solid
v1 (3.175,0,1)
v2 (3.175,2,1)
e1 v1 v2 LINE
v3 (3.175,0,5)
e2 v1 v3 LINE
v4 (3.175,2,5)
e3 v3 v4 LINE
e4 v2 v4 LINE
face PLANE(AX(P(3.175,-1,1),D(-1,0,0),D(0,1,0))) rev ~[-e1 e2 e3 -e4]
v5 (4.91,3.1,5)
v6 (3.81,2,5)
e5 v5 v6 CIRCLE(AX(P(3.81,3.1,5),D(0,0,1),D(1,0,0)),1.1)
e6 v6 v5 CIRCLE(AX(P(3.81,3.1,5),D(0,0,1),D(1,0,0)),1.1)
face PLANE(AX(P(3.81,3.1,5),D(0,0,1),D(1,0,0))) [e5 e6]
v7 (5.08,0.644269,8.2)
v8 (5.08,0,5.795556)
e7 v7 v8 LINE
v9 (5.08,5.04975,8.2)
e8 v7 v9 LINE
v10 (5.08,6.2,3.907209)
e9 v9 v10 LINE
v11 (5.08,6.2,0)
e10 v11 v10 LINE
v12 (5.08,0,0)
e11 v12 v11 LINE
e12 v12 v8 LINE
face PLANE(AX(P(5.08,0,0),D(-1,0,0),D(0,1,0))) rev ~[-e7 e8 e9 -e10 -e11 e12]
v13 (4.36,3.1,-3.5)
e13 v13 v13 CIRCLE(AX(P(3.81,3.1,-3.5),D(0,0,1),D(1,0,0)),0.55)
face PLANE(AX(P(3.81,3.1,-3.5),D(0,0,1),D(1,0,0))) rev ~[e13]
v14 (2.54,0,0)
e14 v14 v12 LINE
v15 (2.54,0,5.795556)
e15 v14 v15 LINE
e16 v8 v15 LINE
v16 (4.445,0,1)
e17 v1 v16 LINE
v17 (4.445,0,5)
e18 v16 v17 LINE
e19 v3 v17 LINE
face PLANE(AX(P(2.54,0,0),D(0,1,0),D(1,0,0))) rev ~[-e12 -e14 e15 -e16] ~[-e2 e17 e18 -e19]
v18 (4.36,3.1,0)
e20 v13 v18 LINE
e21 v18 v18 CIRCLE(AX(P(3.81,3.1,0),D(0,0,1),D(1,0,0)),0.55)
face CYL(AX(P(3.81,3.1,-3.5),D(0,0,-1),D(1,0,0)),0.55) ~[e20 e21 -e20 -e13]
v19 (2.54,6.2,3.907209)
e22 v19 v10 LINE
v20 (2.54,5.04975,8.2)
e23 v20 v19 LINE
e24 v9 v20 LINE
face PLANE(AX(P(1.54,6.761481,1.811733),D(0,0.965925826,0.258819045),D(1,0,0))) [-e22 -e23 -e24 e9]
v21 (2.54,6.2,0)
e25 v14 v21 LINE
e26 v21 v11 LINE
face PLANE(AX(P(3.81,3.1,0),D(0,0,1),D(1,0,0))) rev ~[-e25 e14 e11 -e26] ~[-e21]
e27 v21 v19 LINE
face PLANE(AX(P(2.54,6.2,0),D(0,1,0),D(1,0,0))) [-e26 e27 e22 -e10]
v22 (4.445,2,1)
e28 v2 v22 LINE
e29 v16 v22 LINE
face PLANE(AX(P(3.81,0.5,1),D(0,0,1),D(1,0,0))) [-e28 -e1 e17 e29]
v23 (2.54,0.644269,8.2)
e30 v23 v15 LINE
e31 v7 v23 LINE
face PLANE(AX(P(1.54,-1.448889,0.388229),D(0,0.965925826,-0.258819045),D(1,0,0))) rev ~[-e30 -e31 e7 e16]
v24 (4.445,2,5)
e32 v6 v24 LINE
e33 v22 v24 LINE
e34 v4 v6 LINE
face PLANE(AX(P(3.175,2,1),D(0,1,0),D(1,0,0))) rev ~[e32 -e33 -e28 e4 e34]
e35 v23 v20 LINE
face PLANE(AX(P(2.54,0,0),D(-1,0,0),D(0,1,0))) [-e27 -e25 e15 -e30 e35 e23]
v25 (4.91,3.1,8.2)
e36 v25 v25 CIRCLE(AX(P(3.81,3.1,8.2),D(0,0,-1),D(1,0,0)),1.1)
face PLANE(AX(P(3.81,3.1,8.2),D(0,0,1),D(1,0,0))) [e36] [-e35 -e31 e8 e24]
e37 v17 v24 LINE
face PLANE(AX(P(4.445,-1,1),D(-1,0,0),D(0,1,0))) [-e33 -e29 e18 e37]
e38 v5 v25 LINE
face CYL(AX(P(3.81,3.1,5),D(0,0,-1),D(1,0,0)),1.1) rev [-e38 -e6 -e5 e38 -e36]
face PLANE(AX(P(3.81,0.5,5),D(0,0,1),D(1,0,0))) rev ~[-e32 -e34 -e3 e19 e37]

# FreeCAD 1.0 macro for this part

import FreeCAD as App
import Part
import Sketcher
from FreeCAD import Vector
Q = App.Units.Quantity

doc = App.newDocument("Part")
body = doc.addObject("PartDesign::Body", "Body")

sketch1 = doc.addObject("Sketcher::SketchObject", "Sketch")
body.addObject(sketch1)
sketch1.AttachmentSupport = (doc.XY_Plane, [""])
sketch1.MapMode = "FlatFace"
sketch1.AttachmentOffset = App.Placement(Vector(0, 0, -3.5), App.Rotation())
sketch1.addGeometry(Part.Circle(Vector(1.3, 3.1, 0), Vector(0, 0, 1), 0.6), False)
sketch1.addConstraint([
    Sketcher.Constraint("Diameter", 0, Q("1.1 mm")),
    Sketcher.Constraint("DistanceY", -1, 1, 0, 3, Q("3.1 mm")),
    Sketcher.Constraint("DistanceX", -1, 1, 0, 3, Q("1.27 mm")),
])
pad1 = doc.addObject("PartDesign::Pad", "Pad")
body.addObject(pad1)
pad1.Profile = sketch1
pad1.Length = 3.5
body2 = doc.addObject("PartDesign::Body", "Body001")

sketch2 = doc.addObject("Sketcher::SketchObject", "Sketch001")
body2.addObject(sketch2)
sketch2.AttachmentSupport = (doc.getObject("XY_Plane001"), [""])
sketch2.MapMode = "FlatFace"
sketch2.AttachmentOffset = App.Placement(Vector(0, 0, 5), App.Rotation())
sketch2.addGeometry(Part.Circle(Vector(1.3, 3.1, 0), Vector(0, 0, 1), 1.1), False)
sketch2.addConstraint([
    Sketcher.Constraint("Diameter", 0, Q("2.2 mm")),
    Sketcher.Constraint("DistanceY", -1, 1, 0, 3, Q("3.1 mm")),
    Sketcher.Constraint("DistanceX", -1, 1, 0, 3, Q("1.27 mm")),
])
pad2 = doc.addObject("PartDesign::Pad", "Pad001")
body2.addObject(pad2)
pad2.Profile = sketch2
pad2.Length = 3.5
body3 = doc.addObject("PartDesign::Body", "Body002")

sketch3 = doc.addObject("Sketcher::SketchObject", "Sketch002")
body3.addObject(sketch3)
sketch3.AttachmentSupport = (doc.getObject("XY_Plane002"), [""])
sketch3.MapMode = "FlatFace"
sketch3.addGeometry([
    Part.LineSegment(Vector(0, 6, 0), Vector(0, 0, 0)),
    Part.LineSegment(Vector(0, 0, 0), Vector(4, 0, 0)),
    Part.LineSegment(Vector(4, 0, 0), Vector(4, 6, 0)),
    Part.LineSegment(Vector(4, 6, 0), Vector(0, 6, 0)),
], False)
sketch3.addConstraint([
    Sketcher.Constraint("Coincident", 0, 2, 1, 1),
    Sketcher.Constraint("Coincident", 1, 2, 2, 1),
    Sketcher.Constraint("Coincident", 2, 2, 3, 1),
    Sketcher.Constraint("Coincident", 3, 2, 0, 1),
    Sketcher.Constraint("Vertical", 0),
    Sketcher.Constraint("Horizontal", 1),
    Sketcher.Constraint("Vertical", 2),
    Sketcher.Constraint("Horizontal", 3),
    Sketcher.Constraint("Coincident", 0, 2, -1, 1),
    Sketcher.Constraint("DistanceX", 1, 1, 1, 2, Q("4 mm")),
    Sketcher.Constraint("DistanceY", 0, 2, 0, 1, Q("6 mm")),
])
pad3 = doc.addObject("PartDesign::Pad", "Pad002")
body3.addObject(pad3)
pad3.Profile = sketch3
pad3.Length = 9
body4 = doc.addObject("PartDesign::Body", "Body003")
doc.recompute()

body3.Placement = App.Placement(Vector(-1, -7.244444, 1.941143), App.Rotation(Vector(-1, 0, 0), 15))
boolean = doc.addObject("PartDesign::Boolean", "Boolean")
body4.addObject(boolean)
boolean.Type = "Fuse"
boolean.addObjects([body3])
body5 = doc.addObject("PartDesign::Body", "Body004")

sketch4 = doc.addObject("Sketcher::SketchObject", "Sketch003")
body5.addObject(sketch4)
sketch4.AttachmentSupport = (doc.getObject("XY_Plane004"), [""])
sketch4.MapMode = "FlatFace"
sketch4.addGeometry([
    Part.LineSegment(Vector(0, 6, 0), Vector(0, 0, 0)),
    Part.LineSegment(Vector(0, 0, 0), Vector(4, 0, 0)),
    Part.LineSegment(Vector(4, 0, 0), Vector(4, 6, 0)),
    Part.LineSegment(Vector(4, 6, 0), Vector(0, 6, 0)),
], False)
sketch4.addConstraint([
    Sketcher.Constraint("Coincident", 0, 2, 1, 1),
    Sketcher.Constraint("Coincident", 1, 2, 2, 1),
    Sketcher.Constraint("Coincident", 2, 2, 3, 1),
    Sketcher.Constraint("Coincident", 3, 2, 0, 1),
    Sketcher.Constraint("Vertical", 0),
    Sketcher.Constraint("Horizontal", 1),
    Sketcher.Constraint("Vertical", 2),
    Sketcher.Constraint("Horizontal", 3),
    Sketcher.Constraint("Coincident", 0, 2, -1, 1),
    Sketcher.Constraint("DistanceX", 1, 1, 1, 2, Q("4 mm")),
    Sketcher.Constraint("DistanceY", 0, 2, 0, 1, Q("6 mm")),
])
pad4 = doc.addObject("PartDesign::Pad", "Pad003")
body5.addObject(pad4)
pad4.Profile = sketch4
pad4.Length = 8
body6 = doc.addObject("PartDesign::Body", "Body005")
doc.recompute()

body5.Placement = App.Placement(Vector(-1, 6.761481, 1.811733), App.Rotation(Vector(1, 0, 0), 15))
boolean2 = doc.addObject("PartDesign::Boolean", "Boolean001")
body6.addObject(boolean2)
boolean2.Type = "Fuse"
boolean2.addObjects([body5])
body7 = doc.addObject("PartDesign::Body", "Body006")

sketch5 = doc.addObject("Sketcher::SketchObject", "Sketch004")
body7.addObject(sketch5)
sketch5.AttachmentSupport = (doc.getObject("XY_Plane006"), [""])
sketch5.MapMode = "FlatFace"
sketch5.AttachmentOffset = App.Placement(Vector(0, 0, 1), App.Rotation())
sketch5.addGeometry([
    Part.LineSegment(Vector(0.6, 2, 0), Vector(0.6, -1, 0)),
    Part.LineSegment(Vector(0.6, -1, 0), Vector(1.9, -1, 0)),
    Part.LineSegment(Vector(1.9, -1, 0), Vector(1.9, 2, 0)),
    Part.LineSegment(Vector(1.9, 2, 0), Vector(0.6, 2, 0)),
], False)
sketch5.addConstraint([
    Sketcher.Constraint("Coincident", 0, 2, 1, 1),
    Sketcher.Constraint("Coincident", 1, 2, 2, 1),
    Sketcher.Constraint("Coincident", 2, 2, 3, 1),
    Sketcher.Constraint("Coincident", 3, 2, 0, 1),
    Sketcher.Constraint("Vertical", 0),
    Sketcher.Constraint("Horizontal", 1),
    Sketcher.Constraint("Vertical", 2),
    Sketcher.Constraint("Horizontal", 3),
    Sketcher.Constraint("DistanceY", 0, 2, 0, 1, Q("3 mm")),
    Sketcher.Constraint("DistanceY", 0, 2, -1, 1, Q("1 mm")),
    Sketcher.Constraint("DistanceX", 1, 1, 1, 2, Q("1.27 mm")),
    Sketcher.Constraint("DistanceX", -1, 1, 0, 2, Q("0.635 mm")),
])
pad5 = doc.addObject("PartDesign::Pad", "Pad004")
body7.addObject(pad5)
pad5.Profile = sketch5
pad5.Length = 4
body8 = doc.addObject("PartDesign::Body", "Body007")

sketch6 = doc.addObject("Sketcher::SketchObject", "Sketch005")
body8.addObject(sketch6)
sketch6.AttachmentSupport = (doc.getObject("XY_Plane007"), [""])
sketch6.MapMode = "FlatFace"
sketch6.addGeometry([
    Part.LineSegment(Vector(0, 6.2, 0), Vector(0, 0, 0)),
    Part.LineSegment(Vector(0, 0, 0), Vector(2.5, 0, 0)),
    Part.LineSegment(Vector(2.5, 0, 0), Vector(2.5, 6.2, 0)),
    Part.LineSegment(Vector(2.5, 6.2, 0), Vector(0, 6.2, 0)),
], False)
sketch6.addConstraint([
    Sketcher.Constraint("Coincident", 0, 2, 1, 1),
    Sketcher.Constraint("Coincident", 1, 2, 2, 1),
    Sketcher.Constraint("Coincident", 2, 2, 3, 1),
    Sketcher.Constraint("Coincident", 3, 2, 0, 1),
    Sketcher.Constraint("Vertical", 0),
    Sketcher.Constraint("Horizontal", 1),
    Sketcher.Constraint("Vertical", 2),
    Sketcher.Constraint("Horizontal", 3),
    Sketcher.Constraint("Coincident", 0, 2, -1, 1),
    Sketcher.Constraint("DistanceY", 0, 2, 0, 1, Q("6.2 mm")),
    Sketcher.Constraint("DistanceX", 1, 1, 1, 2, Q("2.54 mm")),
])
pad6 = doc.addObject("PartDesign::Pad", "Pad005")
body8.addObject(pad6)
pad6.Profile = sketch6
pad6.Length = 8.2
doc.recompute()

boolean3 = doc.addObject("PartDesign::Boolean", "Boolean002")
body8.addObject(boolean3)
boolean3.Type = "Cut"
boolean3.addObjects([body7])
doc.recompute()

boolean4 = doc.addObject("PartDesign::Boolean", "Boolean003")
body8.addObject(boolean4)
boolean4.Type = "Cut"
boolean4.addObjects([body6])
doc.recompute()

boolean5 = doc.addObject("PartDesign::Boolean", "Boolean004")
body8.addObject(boolean5)
boolean5.Type = "Cut"
boolean5.addObjects([body4])
doc.recompute()

boolean6 = doc.addObject("PartDesign::Boolean", "Boolean005")
body8.addObject(boolean6)
boolean6.Type = "Cut"
boolean6.addObjects([body2])
doc.recompute()

boolean7 = doc.addObject("PartDesign::Boolean", "Boolean006")
body8.addObject(boolean7)
boolean7.Type = "Fuse"
boolean7.addObjects([body])
body9 = doc.addObject("PartDesign::Body", "Body008")
doc.recompute()

body8.Placement = App.Placement(Vector(2.54, 0, 0), App.Rotation(Vector(0, 0, 1), 0))
boolean8 = doc.addObject("PartDesign::Boolean", "Boolean007")
body9.addObject(boolean8)
boolean8.Type = "Fuse"
boolean8.addObjects([body8])

doc.recompute()
